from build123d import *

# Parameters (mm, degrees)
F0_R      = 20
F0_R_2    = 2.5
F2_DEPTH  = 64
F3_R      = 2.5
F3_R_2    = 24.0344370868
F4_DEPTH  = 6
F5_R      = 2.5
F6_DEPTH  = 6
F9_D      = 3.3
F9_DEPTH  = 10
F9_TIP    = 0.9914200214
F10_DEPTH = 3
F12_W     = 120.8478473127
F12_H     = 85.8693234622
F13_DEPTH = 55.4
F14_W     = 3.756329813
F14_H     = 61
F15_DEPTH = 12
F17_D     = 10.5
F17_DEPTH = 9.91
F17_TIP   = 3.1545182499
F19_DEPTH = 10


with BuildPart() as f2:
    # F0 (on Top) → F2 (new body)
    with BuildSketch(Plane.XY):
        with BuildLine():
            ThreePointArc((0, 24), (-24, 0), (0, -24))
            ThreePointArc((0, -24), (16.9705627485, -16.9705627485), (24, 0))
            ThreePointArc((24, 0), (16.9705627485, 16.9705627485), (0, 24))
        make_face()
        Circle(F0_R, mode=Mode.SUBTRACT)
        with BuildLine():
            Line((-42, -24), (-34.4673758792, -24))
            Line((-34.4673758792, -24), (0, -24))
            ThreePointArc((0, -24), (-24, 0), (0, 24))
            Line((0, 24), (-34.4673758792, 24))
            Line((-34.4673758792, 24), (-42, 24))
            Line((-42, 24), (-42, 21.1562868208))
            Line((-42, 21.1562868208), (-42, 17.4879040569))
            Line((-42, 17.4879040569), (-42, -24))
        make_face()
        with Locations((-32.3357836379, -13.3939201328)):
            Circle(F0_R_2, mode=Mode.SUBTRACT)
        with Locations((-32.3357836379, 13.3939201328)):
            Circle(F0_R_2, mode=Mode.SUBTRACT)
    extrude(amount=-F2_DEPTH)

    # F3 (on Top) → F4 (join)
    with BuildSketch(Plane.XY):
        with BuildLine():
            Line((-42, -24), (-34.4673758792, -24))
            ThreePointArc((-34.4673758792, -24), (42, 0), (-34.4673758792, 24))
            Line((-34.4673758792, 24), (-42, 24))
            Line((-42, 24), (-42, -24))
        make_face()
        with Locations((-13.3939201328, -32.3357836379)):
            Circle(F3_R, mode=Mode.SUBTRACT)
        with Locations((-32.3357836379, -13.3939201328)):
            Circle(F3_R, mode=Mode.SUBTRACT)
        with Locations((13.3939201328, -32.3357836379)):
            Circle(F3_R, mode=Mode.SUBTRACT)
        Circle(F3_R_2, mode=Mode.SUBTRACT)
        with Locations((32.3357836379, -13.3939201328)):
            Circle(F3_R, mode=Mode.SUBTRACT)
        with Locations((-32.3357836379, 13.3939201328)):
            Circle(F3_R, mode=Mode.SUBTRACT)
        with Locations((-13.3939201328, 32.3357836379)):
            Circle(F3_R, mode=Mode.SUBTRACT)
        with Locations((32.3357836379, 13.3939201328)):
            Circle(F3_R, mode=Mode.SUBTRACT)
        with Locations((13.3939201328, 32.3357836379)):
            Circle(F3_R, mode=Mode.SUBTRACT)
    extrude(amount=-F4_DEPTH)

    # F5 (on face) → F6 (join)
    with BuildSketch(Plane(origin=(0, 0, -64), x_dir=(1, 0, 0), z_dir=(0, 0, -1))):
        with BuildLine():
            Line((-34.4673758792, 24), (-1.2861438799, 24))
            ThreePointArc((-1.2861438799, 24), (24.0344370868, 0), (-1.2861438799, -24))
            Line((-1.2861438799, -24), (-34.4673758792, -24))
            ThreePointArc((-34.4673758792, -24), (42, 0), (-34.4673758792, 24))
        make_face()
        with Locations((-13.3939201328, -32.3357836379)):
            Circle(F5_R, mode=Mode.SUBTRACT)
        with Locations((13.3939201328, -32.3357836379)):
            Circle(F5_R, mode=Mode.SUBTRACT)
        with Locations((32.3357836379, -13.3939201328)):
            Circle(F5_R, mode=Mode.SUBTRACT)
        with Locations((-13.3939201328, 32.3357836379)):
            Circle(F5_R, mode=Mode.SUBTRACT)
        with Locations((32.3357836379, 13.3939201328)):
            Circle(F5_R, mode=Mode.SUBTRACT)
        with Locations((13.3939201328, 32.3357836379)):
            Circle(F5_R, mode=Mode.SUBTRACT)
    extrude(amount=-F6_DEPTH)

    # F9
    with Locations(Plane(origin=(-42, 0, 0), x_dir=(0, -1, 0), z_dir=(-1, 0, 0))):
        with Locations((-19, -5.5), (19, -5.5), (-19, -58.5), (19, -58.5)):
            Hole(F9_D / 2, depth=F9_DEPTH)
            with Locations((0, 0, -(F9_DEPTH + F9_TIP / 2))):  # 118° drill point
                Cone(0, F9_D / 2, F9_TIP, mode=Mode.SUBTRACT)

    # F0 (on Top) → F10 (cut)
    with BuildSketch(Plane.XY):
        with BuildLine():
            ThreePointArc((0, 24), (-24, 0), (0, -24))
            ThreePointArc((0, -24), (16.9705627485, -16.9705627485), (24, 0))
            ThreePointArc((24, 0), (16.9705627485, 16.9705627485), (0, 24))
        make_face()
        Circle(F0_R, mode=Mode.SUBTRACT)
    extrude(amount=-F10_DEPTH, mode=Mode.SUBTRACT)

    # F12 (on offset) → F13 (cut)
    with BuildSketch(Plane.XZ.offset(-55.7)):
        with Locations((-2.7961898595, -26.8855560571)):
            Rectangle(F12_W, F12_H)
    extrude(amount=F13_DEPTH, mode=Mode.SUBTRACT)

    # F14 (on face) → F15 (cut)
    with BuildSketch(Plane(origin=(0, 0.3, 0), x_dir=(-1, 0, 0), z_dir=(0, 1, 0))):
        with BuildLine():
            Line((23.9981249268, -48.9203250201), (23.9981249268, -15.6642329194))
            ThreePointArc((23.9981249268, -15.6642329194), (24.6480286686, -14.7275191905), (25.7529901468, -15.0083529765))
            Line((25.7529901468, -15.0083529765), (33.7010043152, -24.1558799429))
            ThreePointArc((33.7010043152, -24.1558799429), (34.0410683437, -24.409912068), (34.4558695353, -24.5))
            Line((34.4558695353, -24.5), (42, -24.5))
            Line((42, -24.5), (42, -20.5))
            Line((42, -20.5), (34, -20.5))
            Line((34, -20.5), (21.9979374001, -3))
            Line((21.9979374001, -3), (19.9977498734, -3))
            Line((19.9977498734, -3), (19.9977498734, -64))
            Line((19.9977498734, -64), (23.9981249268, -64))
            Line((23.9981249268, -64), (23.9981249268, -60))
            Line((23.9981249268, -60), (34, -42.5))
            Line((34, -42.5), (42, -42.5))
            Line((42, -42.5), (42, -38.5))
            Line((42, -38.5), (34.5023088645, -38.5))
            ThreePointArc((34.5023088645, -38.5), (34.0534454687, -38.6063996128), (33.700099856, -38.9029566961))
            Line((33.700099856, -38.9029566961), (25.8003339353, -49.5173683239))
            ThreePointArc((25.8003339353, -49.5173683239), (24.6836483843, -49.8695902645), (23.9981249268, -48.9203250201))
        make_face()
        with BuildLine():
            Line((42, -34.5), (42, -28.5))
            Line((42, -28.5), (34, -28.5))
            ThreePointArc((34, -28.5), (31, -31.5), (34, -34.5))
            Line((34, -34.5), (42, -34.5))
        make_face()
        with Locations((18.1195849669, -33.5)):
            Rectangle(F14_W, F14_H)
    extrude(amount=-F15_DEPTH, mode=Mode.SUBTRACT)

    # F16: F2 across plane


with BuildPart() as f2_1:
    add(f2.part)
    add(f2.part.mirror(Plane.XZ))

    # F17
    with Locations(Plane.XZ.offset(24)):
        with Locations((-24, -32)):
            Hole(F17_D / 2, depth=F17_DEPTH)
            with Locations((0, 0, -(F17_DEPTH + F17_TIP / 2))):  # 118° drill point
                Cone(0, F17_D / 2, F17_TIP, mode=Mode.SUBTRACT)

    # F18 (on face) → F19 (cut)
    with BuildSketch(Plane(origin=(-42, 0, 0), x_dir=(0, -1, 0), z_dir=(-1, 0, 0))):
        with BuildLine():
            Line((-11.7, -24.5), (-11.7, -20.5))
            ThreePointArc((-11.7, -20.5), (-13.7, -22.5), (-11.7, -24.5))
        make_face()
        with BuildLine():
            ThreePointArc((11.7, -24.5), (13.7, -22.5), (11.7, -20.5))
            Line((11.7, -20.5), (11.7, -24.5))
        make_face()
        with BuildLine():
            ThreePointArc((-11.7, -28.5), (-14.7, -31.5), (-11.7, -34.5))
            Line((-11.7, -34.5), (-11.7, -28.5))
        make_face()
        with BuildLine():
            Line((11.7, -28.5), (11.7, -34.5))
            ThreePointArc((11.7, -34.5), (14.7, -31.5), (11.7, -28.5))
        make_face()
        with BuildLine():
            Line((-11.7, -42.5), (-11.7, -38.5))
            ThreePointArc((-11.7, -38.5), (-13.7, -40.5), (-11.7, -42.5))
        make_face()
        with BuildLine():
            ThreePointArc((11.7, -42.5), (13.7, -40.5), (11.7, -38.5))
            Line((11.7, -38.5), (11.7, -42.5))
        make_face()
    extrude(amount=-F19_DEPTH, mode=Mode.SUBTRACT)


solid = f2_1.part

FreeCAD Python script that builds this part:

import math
import FreeCAD as App
import Part
import Sketcher
from FreeCAD import Vector


def add_polygon(sketch, points):
    """Adds a closed chain of lines whose ends are joined by coincident constraints."""
    first, n = sketch.GeometryCount, len(points)
    for a, b in zip(points, points[1:] + points[:1]):
        sketch.addGeometry(Part.LineSegment(App.Vector(*a, 0), App.Vector(*b, 0)), False)
    for i in range(n):
        sketch.addConstraint(Sketcher.Constraint("Coincident", first + i, 2, first + (i + 1) % n, 1))

doc = App.newDocument("Part")
body = doc.addObject("PartDesign::Body", "Body")

sketch1 = body.newObject("Sketcher::SketchObject", "Sketch")
sketch1.AttachmentSupport = (doc.getObject("XY_Plane"), [""])
sketch1.MapMode = "FlatFace"
sketch1.addGeometry([
    Part.ArcOfCircle(Part.Circle(Vector(0, 0, 0), Vector(0, 0, 1), 24), math.radians(0), math.radians(90)),
    Part.LineSegment(Vector(0, 24, 0), Vector(-42, 24, 0)),
    Part.LineSegment(Vector(-42, 24, 0), Vector(-42, -24, 0)),
    Part.LineSegment(Vector(-42, -24, 0), Vector(0, -24, 0)),
    Part.ArcOfCircle(Part.Circle(Vector(0, 0, 0), Vector(0, 0, 1), 24), math.radians(-90), math.radians(0)),
    Part.Circle(Vector(-32.335784, -13.39392, 0), Vector(0, 0, 1), 2.5),
    Part.Circle(Vector(-32.335784, 13.39392, 0), Vector(0, 0, 1), 2.5),
    Part.Circle(Vector(0, 0, 0), Vector(0, 0, 1), 20),
], False)
sketch1.addConstraint([
    Sketcher.Constraint("Tangent", 0, 2, 1, 1),
    Sketcher.Constraint("Coincident", 1, 2, 2, 1),
    Sketcher.Constraint("Coincident", 2, 2, 3, 1),
    Sketcher.Constraint("Tangent", 3, 2, 4, 1),
    Sketcher.Constraint("Tangent", 4, 2, 0, 1),
    Sketcher.Constraint("Horizontal", 1),
    Sketcher.Constraint("Vertical", 2),
    Sketcher.Constraint("Horizontal", 3),
    Sketcher.Constraint("Coincident", 0, 3, -1, 1),
    Sketcher.Constraint("Coincident", 7, 3, -1, 1),
    Sketcher.Constraint("Equal", 0, 4),
    Sketcher.Constraint("Equal", 5, 6),
    Sketcher.Constraint("Symmetric", 5, 3, 6, 3, -1),
    Sketcher.Constraint("PointOnObject", 4, 2, -1),
    Sketcher.Constraint("Diameter", 5, 5.0),
    Sketcher.Constraint("Diameter", 7, 40.0),
    Sketcher.Constraint("Radius", 0, 24.0),
    Sketcher.Constraint("DistanceX", 1, 2, 1, 1, 42.0),
    Sketcher.Constraint("DistanceY", 5, 3, -1, 1, 13.39392),
    Sketcher.Constraint("DistanceX", 5, 3, -1, 1, 32.335784),
])
pad1 = body.newObject("PartDesign::Pad", "Pad")
pad1.Profile = sketch1
pad1.Length = 64
pad1.Reversed = True

sketch2 = body.newObject("Sketcher::SketchObject", "Sketch001")
sketch2.AttachmentSupport = (doc.getObject("XY_Plane"), [""])
sketch2.MapMode = "FlatFace"
sketch2.addGeometry([
    Part.LineSegment(Vector(-42, -24, 0), Vector(-34.467376, -24, 0)),
    Part.ArcOfCircle(Part.Circle(Vector(0, 0, 0), Vector(0, 0, 1), 42), math.radians(-145.150095), math.radians(145.150095)),
    Part.LineSegment(Vector(-34.467376, 24, 0), Vector(-42, 24, 0)),
    Part.LineSegment(Vector(-42, 24, 0), Vector(-42, -24, 0)),
    Part.Circle(Vector(-13.39392, -32.335784, 0), Vector(0, 0, 1), 2.5),
    Part.Circle(Vector(-32.335784, -13.39392, 0), Vector(0, 0, 1), 2.5),
    Part.Circle(Vector(13.39392, -32.335784, 0), Vector(0, 0, 1), 2.5),
    Part.Circle(Vector(32.335784, -13.39392, 0), Vector(0, 0, 1), 2.5),
    Part.Circle(Vector(-32.335784, 13.39392, 0), Vector(0, 0, 1), 2.5),
    Part.Circle(Vector(-13.39392, 32.335784, 0), Vector(0, 0, 1), 2.5),
    Part.Circle(Vector(0, 0, 0), Vector(0, 0, 1), 24.034437),
    Part.Circle(Vector(32.335784, 13.39392, 0), Vector(0, 0, 1), 2.5),
    Part.Circle(Vector(13.39392, 32.335784, 0), Vector(0, 0, 1), 2.5),
], False)
sketch2.addConstraint([
    Sketcher.Constraint("Coincident", 0, 2, 1, 1),
    Sketcher.Constraint("Coincident", 1, 2, 2, 1),
    Sketcher.Constraint("Coincident", 2, 2, 3, 1),
    Sketcher.Constraint("Coincident", 3, 2, 0, 1),
    Sketcher.Constraint("Horizontal", 0),
    Sketcher.Constraint("Horizontal", 2),
    Sketcher.Constraint("Vertical", 3),
    Sketcher.Constraint("Coincident", 1, 3, -1, 1),
    Sketcher.Constraint("Coincident", 10, 3, -1, 1),
    Sketcher.Constraint("Equal", 4, 5),
    Sketcher.Constraint("Equal", 5, 6),
    Sketcher.Constraint("Equal", 6, 7),
    Sketcher.Constraint("Equal", 7, 8),
    Sketcher.Constraint("Equal", 8, 9),
    Sketcher.Constraint("Equal", 9, 11),
    Sketcher.Constraint("Equal", 11, 12),
    Sketcher.Constraint("Symmetric", 7, 3, 8, 3, -1, 1),
    Sketcher.Constraint("Symmetric", 6, 3, 9, 3, -1, 1),
    Sketcher.Constraint("Symmetric", 5, 3, 11, 3, -1, 1),
    Sketcher.Constraint("Symmetric", 4, 3, 12, 3, -1, 1),
    Sketcher.Constraint("Symmetric", 4, 3, 6, 3, -2),
    Sketcher.Constraint("Symmetric", 5, 3, 7, 3, -2),
    Sketcher.Constraint("Vertical", 0, 2, 1, 2),
    Sketcher.Constraint("Diameter", 4, 5.0),
    Sketcher.Constraint("Radius", 1, 42.0),
    Sketcher.Constraint("DistanceY", 3, 2, 3, 1, 48.0),
    Sketcher.Constraint("DistanceX", 2, 2, -1, 1, 42.0),
    Sketcher.Constraint("Diameter", 10, 48.068874),
    Sketcher.Constraint("DistanceX", 4, 3, -1, 1, 13.39392),
    Sketcher.Constraint("DistanceY", 5, 3, -1, 1, 13.39392),
    Sketcher.Constraint("DistanceY", 4, 3, -1, 1, 32.335784),
    Sketcher.Constraint("DistanceX", 5, 3, -1, 1, 32.335784),
])
pad2 = body.newObject("PartDesign::Pad", "Pad001")
pad2.Profile = sketch2
pad2.Length = 6
pad2.Reversed = True

sketch3 = body.newObject("Sketcher::SketchObject", "Sketch002")
sketch3.AttachmentSupport = (doc.getObject("XY_Plane"), [""])
sketch3.MapMode = "FlatFace"
sketch3.AttachmentOffset = App.Placement(Vector(0, 0, -64), App.Rotation())
sketch3.addGeometry([
    Part.LineSegment(Vector(-34.467376, -24, 0), Vector(-1.286144, -24, 0)),
    Part.ArcOfCircle(Part.Circle(Vector(0, 0, 0), Vector(0, 0, 1), 24.034437), math.radians(-93.067508), math.radians(93.067508)),
    Part.LineSegment(Vector(-1.286144, 24, 0), Vector(-34.467376, 24, 0)),
    Part.ArcOfCircle(Part.Circle(Vector(0, 0, 0), Vector(0, 0, 1), 42), math.radians(-145.150095), math.radians(145.150095)),
    Part.Circle(Vector(-13.39392, 32.335784, 0), Vector(0, 0, 1), 2.5),
    Part.Circle(Vector(13.39392, 32.335784, 0), Vector(0, 0, 1), 2.5),
    Part.Circle(Vector(32.335784, 13.39392, 0), Vector(0, 0, 1), 2.5),
    Part.Circle(Vector(-13.39392, -32.335784, 0), Vector(0, 0, 1), 2.5),
    Part.Circle(Vector(32.335784, -13.39392, 0), Vector(0, 0, 1), 2.5),
    Part.Circle(Vector(13.39392, -32.335784, 0), Vector(0, 0, 1), 2.5),
], False)
sketch3.addConstraint([
    Sketcher.Constraint("Coincident", 0, 2, 1, 1),
    Sketcher.Constraint("Coincident", 1, 2, 2, 1),
    Sketcher.Constraint("Coincident", 2, 2, 3, 2),
    Sketcher.Constraint("Coincident", 3, 1, 0, 1),
    Sketcher.Constraint("Horizontal", 0),
    Sketcher.Constraint("Horizontal", 2),
    Sketcher.Constraint("Coincident", 1, 3, -1, 1),
    Sketcher.Constraint("Coincident", 3, 3, -1, 1),
    Sketcher.Constraint("Equal", 4, 5),
    Sketcher.Constraint("Equal", 5, 6),
    Sketcher.Constraint("Equal", 6, 7),
    Sketcher.Constraint("Equal", 7, 8),
    Sketcher.Constraint("Equal", 8, 9),
    Sketcher.Constraint("Symmetric", 5, 3, 7, 3, -1, 1),
    Sketcher.Constraint("Symmetric", 4, 3, 9, 3, -1, 1),
    Sketcher.Constraint("Symmetric", 4, 3, 5, 3, -2),
    Sketcher.Constraint("Symmetric", 6, 3, 8, 3, -1),
    Sketcher.Constraint("Vertical", 0, 2, 1, 2),
    Sketcher.Constraint("Diameter", 4, 5.0),
    Sketcher.Constraint("Radius", 3, 42.0),
    Sketcher.Constraint("DistanceY", 0, 2, -1, 1, 24.0),
    Sketcher.Constraint("Radius", 1, 24.034437),
    Sketcher.Constraint("DistanceX", 4, 3, -1, 1, 13.39392),
    Sketcher.Constraint("DistanceY", -1, 1, 6, 3, 13.39392),
    Sketcher.Constraint("DistanceY", -1, 1, 4, 3, 32.335784),
    Sketcher.Constraint("DistanceX", -1, 1, 6, 3, 32.335784),
])
pad3 = body.newObject("PartDesign::Pad", "Pad002")
pad3.Profile = sketch3
pad3.Length = 6

sketch4 = body.newObject("Sketcher::SketchObject", "Sketch003")
sketch4.AttachmentSupport = (doc.getObject("YZ_Plane"), [""])
sketch4.MapMode = "FlatFace"
sketch4.AttachmentOffset = App.Placement(Vector(0, 0, -42), App.Rotation())
sketch4.addGeometry([
    Part.Circle(Vector(19, -5.5, 0), Vector(0, 0, 1), 1.65),
    Part.Circle(Vector(-19, -5.5, 0), Vector(0, 0, 1), 1.65),
    Part.Circle(Vector(19, -58.5, 0), Vector(0, 0, 1), 1.65),
    Part.Circle(Vector(-19, -58.5, 0), Vector(0, 0, 1), 1.65),
], False)
sketch4.addConstraint([
    Sketcher.Constraint("Equal", 0, 1),
    Sketcher.Constraint("Equal", 1, 2),
    Sketcher.Constraint("Equal", 2, 3),
    Sketcher.Constraint("Symmetric", 0, 3, 1, 3, -2),
    Sketcher.Constraint("Symmetric", 2, 3, 3, 3, -2),
    Sketcher.Constraint("Vertical", 0, 3, 2, 3),
    Sketcher.Constraint("Diameter", 0, 3.3),
    Sketcher.Constraint("DistanceX", -1, 1, 0, 3, 19.0),
    Sketcher.Constraint("DistanceY", 2, 3, 0, 3, 53.0),
    Sketcher.Constraint("DistanceY", 0, 3, -1, 1, 5.5),
])
doc.recompute()
hole = body.newObject("PartDesign::Hole", "Hole")
hole.Profile = sketch4
hole.ThreadType = "None"
hole.Diameter = 3.3
hole.DepthType = "Dimension"
hole.Depth = 10
hole.DrillPoint = "Angled"
hole.DrillPointAngle = 118
hole.Reversed = True

sketch5 = body.newObject("Sketcher::SketchObject", "Sketch004")
sketch5.AttachmentSupport = (doc.getObject("XY_Plane"), [""])
sketch5.MapMode = "FlatFace"
sketch5.addGeometry([
    Part.ArcOfCircle(Part.Circle(Vector(0, 0, 0), Vector(0, 0, 1), 24), math.radians(90), math.radians(270)),
    Part.ArcOfCircle(Part.Circle(Vector(0, 0, 0), Vector(0, 0, 1), 24), math.radians(-90), math.radians(0)),
    Part.ArcOfCircle(Part.Circle(Vector(0, 0, 0), Vector(0, 0, 1), 24), math.radians(0), math.radians(90)),
    Part.Circle(Vector(0, 0, 0), Vector(0, 0, 1), 20),
], False)
sketch5.addConstraint([
    Sketcher.Constraint("Tangent", 0, 2, 1, 1),
    Sketcher.Constraint("Tangent", 1, 2, 2, 1),
    Sketcher.Constraint("Tangent", 2, 2, 0, 1),
    Sketcher.Constraint("Coincident", 0, 3, -1, 1),
    Sketcher.Constraint("Coincident", 3, 3, -1, 1),
    Sketcher.Constraint("PointOnObject", 0, 2, -2),
    Sketcher.Constraint("PointOnObject", 1, 2, -1),
    Sketcher.Constraint("PointOnObject", 2, 2, -2),
    Sketcher.Constraint("Diameter", 3, 40.0),
    Sketcher.Constraint("Radius", 0, 24.0),
])
pocket1 = body.newObject("PartDesign::Pocket", "Pocket")
pocket1.Profile = sketch5
pocket1.Length = 3

sketch6 = body.newObject("Sketcher::SketchObject", "Sketch005")
sketch6.AttachmentSupport = (doc.getObject("XZ_Plane"), [""])
sketch6.MapMode = "FlatFace"
sketch6.AttachmentOffset = App.Placement(Vector(0, 0, -55.7), App.Rotation())
add_polygon(sketch6, [(-63.220114, 16.049106), (-63.220114, -69.820218), (57.627734, -69.820218), (57.627734, 16.049106)])
sketch6.addConstraint([
    Sketcher.Constraint("Vertical", 0),
    Sketcher.Constraint("Horizontal", 1),
    Sketcher.Constraint("Vertical", 2),
    Sketcher.Constraint("Horizontal", 3),
    Sketcher.Constraint("DistanceX", 1, 1, 1, 2, 120.847847),
    Sketcher.Constraint("DistanceY", 0, 2, 0, 1, 85.869323),
    Sketcher.Constraint("DistanceX", 0, 2, -1, 1, 63.220114),
    Sketcher.Constraint("DistanceY", 0, 2, -1, 1, 69.820218),
])
pocket2 = body.newObject("PartDesign::Pocket", "Pocket001")
pocket2.Profile = sketch6
pocket2.Length = 55.4
pocket2.Reversed = True

sketch7 = body.newObject("Sketcher::SketchObject", "Sketch006")
sketch7.AttachmentSupport = (doc.getObject("XZ_Plane"), [""])
sketch7.MapMode = "FlatFace"
sketch7.AttachmentOffset = App.Placement(Vector(0, 0, -0.3), App.Rotation())
sketch7.addGeometry([
    Part.LineSegment(Vector(-23.998125, -48.920325, 0), Vector(-23.998125, -15.664233, 0)),
    Part.ArcOfCircle(Part.Circle(Vector(-24.998125, -15.664233, 0), Vector(0, 0, 1), 1), math.radians(0), math.radians(139.013594)),
    Part.LineSegment(Vector(-25.75299, -15.008353, 0), Vector(-33.701004, -24.15588, 0)),
    Part.ArcOfCircle(Part.Circle(Vector(-34.45587, -23.5, 0), Vector(0, 0, 1), 1), math.radians(-90), math.radians(-40.986406)),
    Part.LineSegment(Vector(-34.45587, -24.5, 0), Vector(-42, -24.5, 0)),
    Part.LineSegment(Vector(-42, -24.5, 0), Vector(-42, -20.5, 0)),
    Part.LineSegment(Vector(-42, -20.5, 0), Vector(-34, -20.5, 0)),
    Part.LineSegment(Vector(-34, -20.5, 0), Vector(-21.997937, -3, 0)),
    Part.LineSegment(Vector(-21.997937, -3, 0), Vector(-16.24142, -3, 0)),
    Part.LineSegment(Vector(-16.24142, -3, 0), Vector(-16.24142, -64, 0)),
    Part.LineSegment(Vector(-16.24142, -64, 0), Vector(-23.998125, -64, 0)),
    Part.LineSegment(Vector(-23.998125, -64, 0), Vector(-23.998125, -60, 0)),
    Part.LineSegment(Vector(-23.998125, -60, 0), Vector(-34, -42.5, 0)),
    Part.LineSegment(Vector(-34, -42.5, 0), Vector(-42, -42.5, 0)),
    Part.LineSegment(Vector(-42, -42.5, 0), Vector(-42, -38.5, 0)),
    Part.LineSegment(Vector(-42, -38.5, 0), Vector(-34.502309, -38.5, 0)),
    Part.ArcOfCircle(Part.Circle(Vector(-34.502309, -39.5, 0), Vector(0, 0, 1), 1), math.radians(36.658432), math.radians(90)),
    Part.LineSegment(Vector(-33.7001, -38.902957, 0), Vector(-25.800334, -49.517368, 0)),
    Part.ArcOfCircle(Part.Circle(Vector(-24.998125, -48.920325, 0), Vector(0, 0, 1), 1), math.radians(-143.341568), math.radians(0)),
    Part.LineSegment(Vector(-42, -34.5, 0), Vector(-42, -28.5, 0)),
    Part.LineSegment(Vector(-42, -28.5, 0), Vector(-34, -28.5, 0)),
    Part.ArcOfCircle(Part.Circle(Vector(-34, -31.5, 0), Vector(0, 0, 1), 3), math.radians(-90), math.radians(90)),
    Part.LineSegment(Vector(-34, -34.5, 0), Vector(-42, -34.5, 0)),
], False)
sketch7.addConstraint([
    Sketcher.Constraint("Tangent", 0, 2, 1, 1),
    Sketcher.Constraint("Tangent", 1, 2, 2, 1),
    Sketcher.Constraint("Tangent", 2, 2, 3, 2),
    Sketcher.Constraint("Tangent", 3, 1, 4, 1),
    Sketcher.Constraint("Coincident", 4, 2, 5, 1),
    Sketcher.Constraint("Coincident", 5, 2, 6, 1),
    Sketcher.Constraint("Coincident", 6, 2, 7, 1),
    Sketcher.Constraint("Coincident", 7, 2, 8, 1),
    Sketcher.Constraint("Coincident", 8, 2, 9, 1),
    Sketcher.Constraint("Coincident", 9, 2, 10, 1),
    Sketcher.Constraint("Coincident", 10, 2, 11, 1),
    Sketcher.Constraint("Coincident", 11, 2, 12, 1),
    Sketcher.Constraint("Coincident", 12, 2, 13, 1),
    Sketcher.Constraint("Coincident", 13, 2, 14, 1),
    Sketcher.Constraint("Coincident", 14, 2, 15, 1),
    Sketcher.Constraint("Tangent", 15, 2, 16, 2),
    Sketcher.Constraint("Tangent", 16, 1, 17, 1),
    Sketcher.Constraint("Tangent", 17, 2, 18, 1),
    Sketcher.Constraint("Tangent", 18, 2, 0, 1),
    Sketcher.Constraint("Coincident", 19, 2, 20, 1),
    Sketcher.Constraint("Tangent", 20, 2, 21, 2),
    Sketcher.Constraint("Tangent", 21, 1, 22, 1),
    Sketcher.Constraint("Coincident", 22, 2, 19, 1),
    Sketcher.Constraint("Vertical", 0),
    Sketcher.Constraint("Horizontal", 4),
    Sketcher.Constraint("Vertical", 5),
    Sketcher.Constraint("Horizontal", 6),
    Sketcher.Constraint("Horizontal", 8),
    Sketcher.Constraint("Vertical", 9),
    Sketcher.Constraint("Horizontal", 10),
    Sketcher.Constraint("Vertical", 11),
    Sketcher.Constraint("Horizontal", 13),
    Sketcher.Constraint("Vertical", 14),
    Sketcher.Constraint("Horizontal", 15),
    Sketcher.Constraint("Vertical", 19),
    Sketcher.Constraint("Horizontal", 20),
    Sketcher.Constraint("Horizontal", 22),
    Sketcher.Constraint("Equal", 1, 3),
    Sketcher.Constraint("Equal", 3, 16),
    Sketcher.Constraint("Equal", 16, 18),
    Sketcher.Constraint("Vertical", 21, 3, 6, 2),
    Sketcher.Constraint("Vertical", 0, 2, 10, 2),
    Sketcher.Constraint("Vertical", 6, 2, 12, 2),
    Sketcher.Constraint("Vertical", 5, 2, 13, 2),
    Sketcher.Constraint("Vertical", 14, 2, 19, 2),
    Sketcher.Constraint("Equal", 5, 11),
    Sketcher.Constraint("Equal", 11, 14),
    Sketcher.Constraint("Radius", 1, 1.0),
    Sketcher.Constraint("Radius", 21, 3.0),
    Sketcher.Constraint("DistanceX", 6, 1, 6, 2, 8.0),
    Sketcher.Constraint("DistanceY", 5, 1, 5, 2, 4.0),
    Sketcher.Constraint("DistanceY", 9, 2, 9, 1, 61.0),
    Sketcher.Constraint("DistanceX", 21, 3, -1, 1, 34.0),
    Sketcher.Constraint("DistanceY", 7, 2, -1, 1, 3.0),
    Sketcher.Constraint("DistanceY", 16, 3, 3, 3, 16.0),
    Sketcher.Constraint("DistanceY", 21, 3, 3, 3, 8.0),
    Sketcher.Constraint("DistanceY", 3, 3, -1, 1, 23.5),
    Sketcher.Constraint("DistanceX", 4, 2, 4, 1, 7.54413),
    Sketcher.Constraint("DistanceX", 15, 1, 15, 2, 7.497691),
    Sketcher.Constraint("DistanceX", 16, 1, -1, 1, 33.7001),
    Sketcher.Constraint("Distance", 7, 21.220262),
    Sketcher.Constraint("Distance", 17, 13.231479),
    Sketcher.Constraint("DistanceX", 8, 1, 8, 2, 5.756517),
    Sketcher.Constraint("DistanceY", 0, 1, 0, 2, 33.256092),
])
pocket3 = body.newObject("PartDesign::Pocket", "Pocket002")
pocket3.Profile = sketch7
pocket3.Length = 12
pocket3.Reversed = True
body2 = doc.addObject("PartDesign::Body", "Body001")
doc.recompute()

body2.BaseFeature = body
doc.recompute()

mirroring = doc.addObject("Part::Mirroring", "Mirroring")
mirroring.Source = body
mirroring.Base = Vector(0, 0, 0)
mirroring.Normal = Vector(0, -1, 0)
body3 = doc.addObject("PartDesign::Body", "Body002")
body3.BaseFeature = mirroring
boolean = body2.newObject("PartDesign::Boolean", "Boolean")
boolean.Type = "Fuse"
boolean.addObjects([body3])
doc.recompute()

sketch8 = body2.newObject("Sketcher::SketchObject", "Sketch007")
sketch8.AttachmentSupport = (doc.getObject("XZ_Plane001"), [""])
sketch8.MapMode = "FlatFace"
sketch8.AttachmentOffset = App.Placement(Vector(0, 0, 24), App.Rotation())
sketch8.addGeometry(Part.Circle(Vector(-24, -32, 0), Vector(0, 0, 1), 5.25), False)
sketch8.addConstraint([
    Sketcher.Constraint("Diameter", 0, 10.5),
    Sketcher.Constraint("DistanceX", 0, 3, -1, 1, 24.0),
    Sketcher.Constraint("DistanceY", 0, 3, -1, 1, 32.0),
])
doc.recompute()
hole2 = body2.newObject("PartDesign::Hole", "Hole001")
hole2.Profile = sketch8
hole2.ThreadType = "None"
hole2.Diameter = 10.5
hole2.DepthType = "Dimension"
hole2.Depth = 9.91
hole2.DrillPoint = "Angled"
hole2.DrillPointAngle = 118

sketch9 = body2.newObject("Sketcher::SketchObject", "Sketch008")
sketch9.AttachmentSupport = (doc.getObject("YZ_Plane001"), [""])
sketch9.MapMode = "FlatFace"
sketch9.AttachmentOffset = App.Placement(Vector(0, 0, -42), App.Rotation())
sketch9.addGeometry([
    Part.LineSegment(Vector(11.7, -24.5, 0), Vector(11.7, -20.5, 0)),
    Part.ArcOfCircle(Part.Circle(Vector(11.7, -22.5, 0), Vector(0, 0, 1), 2), math.radians(-90), math.radians(90)),
    Part.ArcOfCircle(Part.Circle(Vector(-11.7, -22.5, 0), Vector(0, 0, 1), 2), math.radians(90), math.radians(270)),
    Part.LineSegment(Vector(-11.7, -20.5, 0), Vector(-11.7, -24.5, 0)),
    Part.ArcOfCircle(Part.Circle(Vector(11.7, -31.5, 0), Vector(0, 0, 1), 3), math.radians(-90), math.radians(90)),
    Part.LineSegment(Vector(11.7, -34.5, 0), Vector(11.7, -28.5, 0)),
    Part.LineSegment(Vector(-11.7, -28.5, 0), Vector(-11.7, -34.5, 0)),
    Part.ArcOfCircle(Part.Circle(Vector(-11.7, -31.5, 0), Vector(0, 0, 1), 3), math.radians(90), math.radians(270)),
    Part.LineSegment(Vector(11.7, -42.5, 0), Vector(11.7, -38.5, 0)),
    Part.ArcOfCircle(Part.Circle(Vector(11.7, -40.5, 0), Vector(0, 0, 1), 2), math.radians(-90), math.radians(90)),
    Part.ArcOfCircle(Part.Circle(Vector(-11.7, -40.5, 0), Vector(0, 0, 1), 2), math.radians(90), math.radians(270)),
    Part.LineSegment(Vector(-11.7, -38.5, 0), Vector(-11.7, -42.5, 0)),
], False)
sketch9.addConstraint([
    Sketcher.Constraint("Coincident", 0, 1, 1, 1),
    Sketcher.Constraint("Coincident", 1, 2, 0, 2),
    Sketcher.Constraint("Coincident", 2, 1, 3, 1),
    Sketcher.Constraint("Coincident", 3, 2, 2, 2),
    Sketcher.Constraint("Coincident", 4, 1, 5, 1),
    Sketcher.Constraint("Coincident", 5, 2, 4, 2),
    Sketcher.Constraint("Coincident", 6, 1, 7, 1),
    Sketcher.Constraint("Coincident", 7, 2, 6, 2),
    Sketcher.Constraint("Coincident", 8, 1, 9, 1),
    Sketcher.Constraint("Coincident", 9, 2, 8, 2),
    Sketcher.Constraint("Coincident", 10, 1, 11, 1),
    Sketcher.Constraint("Coincident", 11, 2, 10, 2),
    Sketcher.Constraint("Vertical", 0),
    Sketcher.Constraint("Vertical", 3),
    Sketcher.Constraint("Vertical", 5),
    Sketcher.Constraint("Vertical", 6),
    Sketcher.Constraint("Vertical", 8),
    Sketcher.Constraint("Vertical", 11),
    Sketcher.Constraint("Equal", 1, 2),
    Sketcher.Constraint("Equal", 4, 7),
    Sketcher.Constraint("Equal", 2, 9),
    Sketcher.Constraint("Equal", 9, 10),
    Sketcher.Constraint("Symmetric", 1, 3, 2, 3, -2),
    Sketcher.Constraint("Symmetric", 4, 3, 7, 3, -2),
    Sketcher.Constraint("Symmetric", 9, 3, 10, 3, -2),
    Sketcher.Constraint("Vertical", 1, 3, 4, 3),
    Sketcher.Constraint("Vertical", 4, 3, 9, 3),
    Sketcher.Constraint("Vertical", 9, 3, 0, 1),
    Sketcher.Constraint("Vertical", 10, 3, 2, 1),
    Sketcher.Constraint("Vertical", 1, 2, 4, 1),
    Sketcher.Constraint("Vertical", 3, 2, 6, 1),
    Sketcher.Constraint("Vertical", 5, 2, 8, 1),
    Sketcher.Constraint("Vertical", 7, 2, 10, 1),
    Sketcher.Constraint("Radius", 1, 2.0),
    Sketcher.Constraint("Radius", 4, 3.0),
    Sketcher.Constraint("DistanceY", 4, 3, 1, 3, 9.0),
    Sketcher.Constraint("DistanceY", 9, 3, 4, 3, 9.0),
    Sketcher.Constraint("DistanceX", -1, 1, 1, 3, 11.7),
    Sketcher.Constraint("DistanceY", 1, 3, -1, 1, 22.5),
])
pocket4 = body2.newObject("PartDesign::Pocket", "Pocket003")
pocket4.Profile = sketch9
pocket4.Length = 10
pocket4.Reversed = True
mirroring.Visibility = False

doc.recompute()
